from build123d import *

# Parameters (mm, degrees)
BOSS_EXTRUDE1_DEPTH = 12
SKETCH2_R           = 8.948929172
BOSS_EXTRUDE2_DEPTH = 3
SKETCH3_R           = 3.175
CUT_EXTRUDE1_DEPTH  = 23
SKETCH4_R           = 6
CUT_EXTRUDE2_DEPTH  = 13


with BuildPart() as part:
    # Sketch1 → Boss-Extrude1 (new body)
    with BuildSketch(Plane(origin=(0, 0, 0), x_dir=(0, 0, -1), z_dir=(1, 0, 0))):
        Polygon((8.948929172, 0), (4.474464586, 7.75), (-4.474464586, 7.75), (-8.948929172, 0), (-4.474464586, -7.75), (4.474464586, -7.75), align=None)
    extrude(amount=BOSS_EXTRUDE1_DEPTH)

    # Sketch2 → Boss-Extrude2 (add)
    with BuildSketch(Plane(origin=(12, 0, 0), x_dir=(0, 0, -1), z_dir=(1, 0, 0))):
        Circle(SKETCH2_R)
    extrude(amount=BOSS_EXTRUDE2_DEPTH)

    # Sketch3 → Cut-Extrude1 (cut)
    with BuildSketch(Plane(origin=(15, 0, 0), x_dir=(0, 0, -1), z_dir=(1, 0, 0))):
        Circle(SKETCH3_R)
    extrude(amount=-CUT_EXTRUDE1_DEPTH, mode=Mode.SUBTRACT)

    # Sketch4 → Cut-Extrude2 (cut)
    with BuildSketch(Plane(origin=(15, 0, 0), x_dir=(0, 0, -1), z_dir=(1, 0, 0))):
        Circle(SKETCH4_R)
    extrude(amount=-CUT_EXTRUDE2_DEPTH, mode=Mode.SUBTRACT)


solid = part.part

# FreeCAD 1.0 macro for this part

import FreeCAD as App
import Part
import Sketcher

V = App.Vector
Q = App.Units.Quantity

doc = App.newDocument("Part")
body = doc.addObject("PartDesign::Body", "Body")

# Sketch on YZ plane
sketch1 = body.newObject("Sketcher::SketchObject", "Sketch")
sketch1.AttachmentSupport = (doc.getObject("YZ_Plane"), [""])
sketch1.MapMode = "FlatFace"
sketch1.addGeometry([
    Part.LineSegment(V(0, -9, 0), V(8, -4, 0)),  # 0
    Part.LineSegment(V(8, -4, 0), V(8, 4, 0)),  # 1
    Part.LineSegment(V(8, 4, 0), V(0, 9, 0)),  # 2
    Part.LineSegment(V(0, 9, 0), V(-8, 4, 0)),  # 3
    Part.LineSegment(V(-8, 4, 0), V(-8, -4, 0)),  # 4
    Part.LineSegment(V(-8, -4, 0), V(0, -9, 0)),  # 5
], False)
sketch1.addConstraint([
    Sketcher.Constraint("Coincident", 0, 2, 1, 1),
    Sketcher.Constraint("Coincident", 1, 2, 2, 1),
    Sketcher.Constraint("Coincident", 2, 2, 3, 1),
    Sketcher.Constraint("Coincident", 3, 2, 4, 1),
    Sketcher.Constraint("Coincident", 4, 2, 5, 1),
    Sketcher.Constraint("Coincident", 5, 2, 0, 1),
    Sketcher.Constraint("Vertical", 1),
    Sketcher.Constraint("Vertical", 4),
    Sketcher.Constraint("Symmetric", 0, 2, 3, 2, -1, 1),
    Sketcher.Constraint("Symmetric", 2, 2, 5, 2, -1, 1),
    Sketcher.Constraint("PointOnObject", 2, 2, -2),
    Sketcher.Constraint("Parallel", 2, 5),
    Sketcher.Constraint("Horizontal", 1, 2, 3, 2),
    Sketcher.Constraint("Angle", 0, Q("30 deg")),
    Sketcher.Constraint("DistanceX", 3, 2, 1, 2, 15.5),
    Sketcher.Constraint("DistanceY", 1, 1, 1, 2, 8.948929),
])
pad1 = body.newObject("PartDesign::Pad", "Pad")
pad1.Profile = sketch1
pad1.Length = 12

# Sketch on YZ plane
sketch2 = body.newObject("Sketcher::SketchObject", "Sketch001")
sketch2.AttachmentSupport = (doc.getObject("YZ_Plane"), [""])
sketch2.MapMode = "FlatFace"
sketch2.AttachmentOffset = App.Placement(V(0, 0, 12), App.Rotation())
sketch2.addGeometry(Part.Circle(V(0, 0, 0), V(0, 0, 1), 9), False)
sketch2.addConstraint([
    Sketcher.Constraint("Coincident", 0, 3, -1, 1),
    Sketcher.Constraint("Diameter", 0, 17.897858),
])
pad2 = body.newObject("PartDesign::Pad", "Pad001")
pad2.Profile = sketch2
pad2.Length = 3

# Sketch on YZ plane
sketch3 = body.newObject("Sketcher::SketchObject", "Sketch002")
sketch3.AttachmentSupport = (doc.getObject("YZ_Plane"), [""])
sketch3.MapMode = "FlatFace"
sketch3.AttachmentOffset = App.Placement(V(0, 0, 15), App.Rotation())
sketch3.addGeometry(Part.Circle(V(0, 0, 0), V(0, 0, 1), 3.2), False)
sketch3.addConstraint([
    Sketcher.Constraint("Coincident", 0, 3, -1, 1),
    Sketcher.Constraint("Diameter", 0, 6.35),
])
pocket1 = body.newObject("PartDesign::Pocket", "Pocket")
pocket1.Profile = sketch3
pocket1.Length = 23

# Sketch on YZ plane
sketch4 = body.newObject("Sketcher::SketchObject", "Sketch003")
sketch4.AttachmentSupport = (doc.getObject("YZ_Plane"), [""])
sketch4.MapMode = "FlatFace"
sketch4.AttachmentOffset = App.Placement(V(0, 0, 15), App.Rotation())
sketch4.addGeometry(Part.Circle(V(0, 0, 0), V(0, 0, 1), 6), False)
sketch4.addConstraint([
    Sketcher.Constraint("Coincident", 0, 3, -1, 1),
    Sketcher.Constraint("Diameter", 0, 12.0),
])
pocket2 = body.newObject("PartDesign::Pocket", "Pocket001")
pocket2.Profile = sketch4
pocket2.Length = 13

doc.recompute()
